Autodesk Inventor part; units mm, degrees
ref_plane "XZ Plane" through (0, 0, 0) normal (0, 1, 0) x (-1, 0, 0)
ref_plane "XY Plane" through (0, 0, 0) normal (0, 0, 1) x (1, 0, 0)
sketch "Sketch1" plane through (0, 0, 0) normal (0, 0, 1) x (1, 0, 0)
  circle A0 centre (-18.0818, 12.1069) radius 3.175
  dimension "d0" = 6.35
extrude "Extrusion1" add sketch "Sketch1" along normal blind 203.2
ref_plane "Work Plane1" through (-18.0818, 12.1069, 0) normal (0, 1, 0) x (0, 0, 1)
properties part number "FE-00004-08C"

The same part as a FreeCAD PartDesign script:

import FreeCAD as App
import Part
import Sketcher
from FreeCAD import Vector
Q = App.Units.Quantity

doc = App.newDocument("Part")
params = doc.addObject("Spreadsheet::Sheet", "Params")
for row, (alias, value) in enumerate([
    ("sketch1_diameter", "0.25 in"),
    ("pad1_length", "8 in"),
], start=1):
    params.set(f"A{row}", alias)
    params.set(f"B{row}", "=" + value)
    params.setAlias(f"B{row}", alias)

body = doc.addObject("PartDesign::Body", "Body")

# Sketch on XY plane
sketch1 = body.newObject("Sketcher::SketchObject", "Sketch")
sketch1.AttachmentSupport = (doc.getObject("XY_Plane"), [""])
sketch1.MapMode = "FlatFace"
sketch1.addGeometry(Part.Circle(Vector(-18.1, 12.1, 0), Vector(0, 0, 1), 3.2), False)
sketch1.addConstraint([
    Sketcher.Constraint("Diameter", 0, Q("0.25 in")),
    Sketcher.Constraint("DistanceX", 0, 3, -1, 1, 18.0818),
    Sketcher.Constraint("DistanceY", -1, 1, 0, 3, 12.107),
])
sketch1.setExpression("Constraints[0]", "Params.sketch1_diameter")
pad1 = body.newObject("PartDesign::Pad", "Pad")
pad1.Profile = sketch1
pad1.setExpression("Length", "Params.pad1_length")

doc.recompute()
